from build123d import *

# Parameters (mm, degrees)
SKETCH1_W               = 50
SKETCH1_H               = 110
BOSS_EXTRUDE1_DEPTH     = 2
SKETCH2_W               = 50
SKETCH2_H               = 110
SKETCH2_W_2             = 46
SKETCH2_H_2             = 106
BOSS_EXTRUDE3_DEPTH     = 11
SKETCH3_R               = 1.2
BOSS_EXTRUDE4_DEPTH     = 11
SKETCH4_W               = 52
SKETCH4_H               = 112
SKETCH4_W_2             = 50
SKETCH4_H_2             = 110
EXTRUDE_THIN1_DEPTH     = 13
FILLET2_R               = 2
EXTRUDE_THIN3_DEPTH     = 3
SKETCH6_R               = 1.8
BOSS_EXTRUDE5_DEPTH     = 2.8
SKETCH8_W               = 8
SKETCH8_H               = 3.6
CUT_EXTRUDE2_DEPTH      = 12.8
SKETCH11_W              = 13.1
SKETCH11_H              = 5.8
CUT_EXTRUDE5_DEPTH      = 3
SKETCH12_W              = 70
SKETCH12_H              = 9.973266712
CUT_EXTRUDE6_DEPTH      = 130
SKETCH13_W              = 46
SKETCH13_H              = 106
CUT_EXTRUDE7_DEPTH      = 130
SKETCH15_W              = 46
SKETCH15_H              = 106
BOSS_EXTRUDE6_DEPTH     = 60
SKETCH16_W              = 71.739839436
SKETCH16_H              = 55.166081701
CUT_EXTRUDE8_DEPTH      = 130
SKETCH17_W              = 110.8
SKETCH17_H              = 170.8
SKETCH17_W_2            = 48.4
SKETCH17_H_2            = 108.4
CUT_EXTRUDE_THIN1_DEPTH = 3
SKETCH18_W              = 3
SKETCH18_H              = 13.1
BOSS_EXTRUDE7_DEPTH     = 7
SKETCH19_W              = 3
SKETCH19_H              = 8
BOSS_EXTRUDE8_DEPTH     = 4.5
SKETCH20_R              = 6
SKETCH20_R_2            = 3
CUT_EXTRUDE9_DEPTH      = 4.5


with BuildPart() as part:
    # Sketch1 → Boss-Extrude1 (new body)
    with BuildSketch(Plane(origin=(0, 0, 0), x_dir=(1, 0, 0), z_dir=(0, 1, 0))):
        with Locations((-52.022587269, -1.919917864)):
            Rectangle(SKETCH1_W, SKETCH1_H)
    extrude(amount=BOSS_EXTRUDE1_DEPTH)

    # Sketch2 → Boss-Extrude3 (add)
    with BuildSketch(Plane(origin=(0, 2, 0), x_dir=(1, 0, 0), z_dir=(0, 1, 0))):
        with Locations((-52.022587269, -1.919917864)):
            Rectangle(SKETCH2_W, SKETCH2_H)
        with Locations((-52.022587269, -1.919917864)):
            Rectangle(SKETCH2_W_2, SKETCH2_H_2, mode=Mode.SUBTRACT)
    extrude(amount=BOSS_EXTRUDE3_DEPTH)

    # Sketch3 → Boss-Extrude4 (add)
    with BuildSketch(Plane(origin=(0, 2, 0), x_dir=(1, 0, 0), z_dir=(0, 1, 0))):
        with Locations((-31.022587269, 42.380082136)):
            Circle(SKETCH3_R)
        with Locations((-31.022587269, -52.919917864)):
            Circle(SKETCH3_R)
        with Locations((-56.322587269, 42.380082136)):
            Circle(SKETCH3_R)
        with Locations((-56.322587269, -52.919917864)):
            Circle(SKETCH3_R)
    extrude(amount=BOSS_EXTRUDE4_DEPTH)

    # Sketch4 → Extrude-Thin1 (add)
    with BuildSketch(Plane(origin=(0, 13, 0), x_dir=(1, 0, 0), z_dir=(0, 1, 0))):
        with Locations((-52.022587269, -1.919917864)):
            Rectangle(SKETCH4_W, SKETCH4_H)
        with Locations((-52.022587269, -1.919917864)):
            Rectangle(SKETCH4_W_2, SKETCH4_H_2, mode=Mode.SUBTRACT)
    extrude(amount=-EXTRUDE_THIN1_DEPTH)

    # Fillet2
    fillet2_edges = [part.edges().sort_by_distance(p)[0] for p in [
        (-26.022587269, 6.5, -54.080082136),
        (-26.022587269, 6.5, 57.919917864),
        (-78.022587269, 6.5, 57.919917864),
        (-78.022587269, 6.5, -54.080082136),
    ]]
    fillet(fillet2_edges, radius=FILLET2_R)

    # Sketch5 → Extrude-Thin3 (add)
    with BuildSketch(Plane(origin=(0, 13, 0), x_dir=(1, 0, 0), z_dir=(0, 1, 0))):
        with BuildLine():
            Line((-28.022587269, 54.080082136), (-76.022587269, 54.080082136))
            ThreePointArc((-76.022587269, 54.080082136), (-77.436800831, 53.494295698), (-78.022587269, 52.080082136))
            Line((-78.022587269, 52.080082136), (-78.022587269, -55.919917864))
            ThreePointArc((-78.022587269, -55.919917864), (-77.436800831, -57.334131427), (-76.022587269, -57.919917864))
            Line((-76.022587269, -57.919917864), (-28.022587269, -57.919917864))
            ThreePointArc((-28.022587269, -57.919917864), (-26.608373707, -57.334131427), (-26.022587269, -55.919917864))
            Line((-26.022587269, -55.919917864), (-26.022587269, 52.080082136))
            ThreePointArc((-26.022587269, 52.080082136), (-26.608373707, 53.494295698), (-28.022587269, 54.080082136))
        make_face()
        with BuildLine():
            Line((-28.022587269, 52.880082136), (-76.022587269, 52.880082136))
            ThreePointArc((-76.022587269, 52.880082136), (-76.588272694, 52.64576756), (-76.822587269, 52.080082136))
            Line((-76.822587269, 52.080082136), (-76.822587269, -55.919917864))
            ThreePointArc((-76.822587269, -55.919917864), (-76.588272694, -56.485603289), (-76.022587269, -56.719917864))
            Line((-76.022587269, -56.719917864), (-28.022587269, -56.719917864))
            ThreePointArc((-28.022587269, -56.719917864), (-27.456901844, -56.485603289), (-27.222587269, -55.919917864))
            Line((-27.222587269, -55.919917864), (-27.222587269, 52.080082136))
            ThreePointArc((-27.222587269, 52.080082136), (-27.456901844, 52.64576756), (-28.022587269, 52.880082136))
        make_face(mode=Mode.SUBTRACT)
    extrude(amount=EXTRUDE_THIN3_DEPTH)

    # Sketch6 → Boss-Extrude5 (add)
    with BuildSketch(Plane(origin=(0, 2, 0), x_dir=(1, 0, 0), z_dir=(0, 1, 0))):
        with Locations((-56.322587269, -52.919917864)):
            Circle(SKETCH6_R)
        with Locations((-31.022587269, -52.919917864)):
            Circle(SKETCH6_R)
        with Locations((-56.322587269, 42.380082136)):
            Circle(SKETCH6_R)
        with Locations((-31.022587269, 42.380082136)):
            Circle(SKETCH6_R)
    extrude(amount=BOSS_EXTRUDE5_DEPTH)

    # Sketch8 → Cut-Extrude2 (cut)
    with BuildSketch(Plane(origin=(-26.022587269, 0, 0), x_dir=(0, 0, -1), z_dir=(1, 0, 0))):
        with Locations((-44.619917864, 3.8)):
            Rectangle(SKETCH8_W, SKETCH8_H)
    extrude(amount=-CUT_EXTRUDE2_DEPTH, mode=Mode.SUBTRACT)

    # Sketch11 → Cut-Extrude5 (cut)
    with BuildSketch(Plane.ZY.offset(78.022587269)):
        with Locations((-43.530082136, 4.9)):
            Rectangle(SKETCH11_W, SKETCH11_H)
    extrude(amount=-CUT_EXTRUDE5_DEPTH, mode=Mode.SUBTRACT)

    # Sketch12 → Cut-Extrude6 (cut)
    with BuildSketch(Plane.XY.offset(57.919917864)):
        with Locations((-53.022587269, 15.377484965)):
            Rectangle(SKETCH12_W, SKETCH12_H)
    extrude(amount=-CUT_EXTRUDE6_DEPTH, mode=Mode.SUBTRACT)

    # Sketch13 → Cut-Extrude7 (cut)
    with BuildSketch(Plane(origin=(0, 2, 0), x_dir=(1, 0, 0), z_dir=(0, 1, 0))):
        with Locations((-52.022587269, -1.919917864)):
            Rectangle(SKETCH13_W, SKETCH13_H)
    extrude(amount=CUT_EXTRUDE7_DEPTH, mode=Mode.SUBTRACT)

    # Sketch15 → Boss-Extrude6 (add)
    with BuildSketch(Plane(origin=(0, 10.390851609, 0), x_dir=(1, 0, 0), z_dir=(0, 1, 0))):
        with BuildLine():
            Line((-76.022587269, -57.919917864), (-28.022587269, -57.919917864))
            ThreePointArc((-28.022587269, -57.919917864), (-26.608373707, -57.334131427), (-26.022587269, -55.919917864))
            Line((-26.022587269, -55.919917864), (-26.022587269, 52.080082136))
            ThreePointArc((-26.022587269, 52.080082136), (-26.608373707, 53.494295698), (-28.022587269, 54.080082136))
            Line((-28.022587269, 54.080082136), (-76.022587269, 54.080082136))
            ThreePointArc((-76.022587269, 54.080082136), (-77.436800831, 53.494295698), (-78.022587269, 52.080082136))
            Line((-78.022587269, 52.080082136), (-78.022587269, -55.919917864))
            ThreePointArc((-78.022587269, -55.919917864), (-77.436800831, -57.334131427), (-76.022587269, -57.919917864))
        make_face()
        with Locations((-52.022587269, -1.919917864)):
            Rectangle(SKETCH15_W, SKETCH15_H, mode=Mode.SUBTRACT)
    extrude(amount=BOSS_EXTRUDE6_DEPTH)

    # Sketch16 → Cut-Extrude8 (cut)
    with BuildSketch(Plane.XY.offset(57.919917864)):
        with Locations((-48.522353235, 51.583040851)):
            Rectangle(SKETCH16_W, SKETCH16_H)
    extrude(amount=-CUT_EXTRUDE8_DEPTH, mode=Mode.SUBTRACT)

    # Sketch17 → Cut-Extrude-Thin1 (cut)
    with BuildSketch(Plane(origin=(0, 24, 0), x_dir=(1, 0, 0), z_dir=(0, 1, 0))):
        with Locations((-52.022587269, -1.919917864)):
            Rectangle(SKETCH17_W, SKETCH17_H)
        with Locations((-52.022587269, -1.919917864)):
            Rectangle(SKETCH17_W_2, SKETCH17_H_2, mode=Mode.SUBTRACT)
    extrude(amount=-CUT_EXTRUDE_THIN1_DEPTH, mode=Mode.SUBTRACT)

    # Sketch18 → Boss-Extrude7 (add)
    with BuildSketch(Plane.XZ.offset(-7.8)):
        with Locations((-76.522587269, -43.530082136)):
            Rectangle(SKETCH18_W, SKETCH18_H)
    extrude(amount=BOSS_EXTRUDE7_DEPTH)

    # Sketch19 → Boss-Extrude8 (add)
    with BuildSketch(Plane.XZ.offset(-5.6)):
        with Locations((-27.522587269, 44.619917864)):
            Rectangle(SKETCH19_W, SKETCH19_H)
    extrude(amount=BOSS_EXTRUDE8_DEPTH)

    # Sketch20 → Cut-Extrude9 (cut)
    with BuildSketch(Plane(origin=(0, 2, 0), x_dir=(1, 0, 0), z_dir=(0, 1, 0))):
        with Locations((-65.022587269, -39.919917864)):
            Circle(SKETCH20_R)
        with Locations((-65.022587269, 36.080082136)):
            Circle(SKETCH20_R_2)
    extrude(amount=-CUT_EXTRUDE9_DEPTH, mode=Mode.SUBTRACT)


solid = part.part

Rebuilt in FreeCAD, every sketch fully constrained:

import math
import FreeCAD as App
import Part
import Sketcher
from FreeCAD import Vector


def edges_at(feature, points):
    """Names of the edges that pass closest to the given points."""
    edges = feature.Shape.Edges
    near = lambda p: min(range(len(edges)), key=lambda i: edges[i].distToShape(Part.Vertex(*p))[0])
    return sorted({f"Edge{near(p) + 1}" for p in points})

doc = App.newDocument("Part")
body = doc.addObject("PartDesign::Body", "Body")

sketch1 = body.newObject("Sketcher::SketchObject", "Sketch")
sketch1.AttachmentSupport = (doc.getObject("XZ_Plane"), [""])
sketch1.MapMode = "FlatFace"
sketch1.addGeometry([
    Part.LineSegment(Vector(-77, -53, 0), Vector(-77, 57, 0)),
    Part.LineSegment(Vector(-77, 57, 0), Vector(-27, 57, 0)),
    Part.LineSegment(Vector(-27, 57, 0), Vector(-27, -53, 0)),
    Part.LineSegment(Vector(-27, -53, 0), Vector(-77, -53, 0)),
], False)
sketch1.addConstraint([
    Sketcher.Constraint("Coincident", 0, 2, 1, 1),
    Sketcher.Constraint("Coincident", 1, 2, 2, 1),
    Sketcher.Constraint("Coincident", 2, 2, 3, 1),
    Sketcher.Constraint("Coincident", 3, 2, 0, 1),
    Sketcher.Constraint("Vertical", 0),
    Sketcher.Constraint("Horizontal", 1),
    Sketcher.Constraint("Vertical", 2),
    Sketcher.Constraint("Horizontal", 3),
    Sketcher.Constraint("DistanceX", 1, 1, 1, 2, 50.0),
    Sketcher.Constraint("DistanceY", 0, 1, 0, 2, 110.0),
    Sketcher.Constraint("DistanceX", 0, 2, -1, 1, 77.022587),
    Sketcher.Constraint("DistanceY", -1, 1, 0, 2, 56.919918),
])
pad1 = body.newObject("PartDesign::Pad", "Pad")
pad1.Profile = sketch1
pad1.Length = 2
pad1.Reversed = True

sketch2 = body.newObject("Sketcher::SketchObject", "Sketch001")
sketch2.AttachmentSupport = (doc.getObject("XZ_Plane"), [""])
sketch2.MapMode = "FlatFace"
sketch2.AttachmentOffset = App.Placement(Vector(0, 0, -2), App.Rotation())
sketch2.addGeometry([
    Part.LineSegment(Vector(-77, -53, 0), Vector(-77, 57, 0)),
    Part.LineSegment(Vector(-77, 57, 0), Vector(-27, 57, 0)),
    Part.LineSegment(Vector(-27, 57, 0), Vector(-27, -53, 0)),
    Part.LineSegment(Vector(-27, -53, 0), Vector(-77, -53, 0)),
    Part.LineSegment(Vector(-29, 55, 0), Vector(-75, 55, 0)),
    Part.LineSegment(Vector(-75, 55, 0), Vector(-75, -51, 0)),
    Part.LineSegment(Vector(-75, -51, 0), Vector(-29, -51, 0)),
    Part.LineSegment(Vector(-29, -51, 0), Vector(-29, 55, 0)),
], False)
sketch2.addConstraint([
    Sketcher.Constraint("Coincident", 0, 2, 1, 1),
    Sketcher.Constraint("Coincident", 1, 2, 2, 1),
    Sketcher.Constraint("Coincident", 2, 2, 3, 1),
    Sketcher.Constraint("Coincident", 3, 2, 0, 1),
    Sketcher.Constraint("Coincident", 4, 2, 5, 1),
    Sketcher.Constraint("Coincident", 5, 2, 6, 1),
    Sketcher.Constraint("Coincident", 6, 2, 7, 1),
    Sketcher.Constraint("Coincident", 7, 2, 4, 1),
    Sketcher.Constraint("Vertical", 0),
    Sketcher.Constraint("Horizontal", 1),
    Sketcher.Constraint("Vertical", 2),
    Sketcher.Constraint("Horizontal", 3),
    Sketcher.Constraint("Horizontal", 4),
    Sketcher.Constraint("Vertical", 5),
    Sketcher.Constraint("Horizontal", 6),
    Sketcher.Constraint("Vertical", 7),
    Sketcher.Constraint("DistanceX", 1, 1, 1, 2, 50.0),
    Sketcher.Constraint("DistanceX", 4, 2, 4, 1, 46.0),
    Sketcher.Constraint("DistanceY", 0, 1, 0, 2, 110.0),
    Sketcher.Constraint("DistanceY", 5, 2, 5, 1, 106.0),
    Sketcher.Constraint("DistanceX", 0, 2, 4, 2, 2.0),
    Sketcher.Constraint("DistanceY", 4, 2, 0, 2, 2.0),
    Sketcher.Constraint("DistanceX", 0, 2, -1, 1, 77.022587),
    Sketcher.Constraint("DistanceY", -1, 1, 0, 2, 56.919918),
])
pad2 = body.newObject("PartDesign::Pad", "Pad001")
pad2.Profile = sketch2
pad2.Length = 11
pad2.Reversed = True

sketch3 = body.newObject("Sketcher::SketchObject", "Sketch002")
sketch3.AttachmentSupport = (doc.getObject("XZ_Plane"), [""])
sketch3.MapMode = "FlatFace"
sketch3.AttachmentOffset = App.Placement(Vector(0, 0, -2), App.Rotation())
sketch3.addGeometry([
    Part.Circle(Vector(-31, -42.4, 0), Vector(0, 0, 1), 1.2),
    Part.Circle(Vector(-31, 52.9, 0), Vector(0, 0, 1), 1.2),
    Part.Circle(Vector(-56.3, -42.4, 0), Vector(0, 0, 1), 1.2),
    Part.Circle(Vector(-56.3, 52.9, 0), Vector(0, 0, 1), 1.2),
], False)
sketch3.addConstraint([
    Sketcher.Constraint("Equal", 0, 1),
    Sketcher.Constraint("Equal", 1, 2),
    Sketcher.Constraint("Equal", 2, 3),
    Sketcher.Constraint("Horizontal", 0, 3, 2, 3),
    Sketcher.Constraint("Horizontal", 1, 3, 3, 3),
    Sketcher.Constraint("Vertical", 0, 3, 1, 3),
    Sketcher.Constraint("Vertical", 2, 3, 3, 3),
    Sketcher.Constraint("Diameter", 0, 2.4),
    Sketcher.Constraint("DistanceY", 0, 3, 1, 3, 95.3),
    Sketcher.Constraint("DistanceX", 2, 3, 0, 3, 25.3),
    Sketcher.Constraint("DistanceX", 0, 3, -1, 1, 31.022587),
    Sketcher.Constraint("DistanceY", 0, 3, -1, 1, 42.380082),
])
pad3 = body.newObject("PartDesign::Pad", "Pad002")
pad3.Profile = sketch3
pad3.Length = 11
pad3.Reversed = True

sketch4 = body.newObject("Sketcher::SketchObject", "Sketch003")
sketch4.AttachmentSupport = (doc.getObject("XZ_Plane"), [""])
sketch4.MapMode = "FlatFace"
sketch4.AttachmentOffset = App.Placement(Vector(0, 0, -13), App.Rotation())
sketch4.addGeometry([
    Part.LineSegment(Vector(-78, -54, 0), Vector(-78, 58, 0)),
    Part.LineSegment(Vector(-78, 58, 0), Vector(-26, 58, 0)),
    Part.LineSegment(Vector(-26, 58, 0), Vector(-26, -54, 0)),
    Part.LineSegment(Vector(-26, -54, 0), Vector(-78, -54, 0)),
    Part.LineSegment(Vector(-27, 57, 0), Vector(-77, 57, 0)),
    Part.LineSegment(Vector(-77, 57, 0), Vector(-77, -53, 0)),
    Part.LineSegment(Vector(-77, -53, 0), Vector(-27, -53, 0)),
    Part.LineSegment(Vector(-27, -53, 0), Vector(-27, 57, 0)),
], False)
sketch4.addConstraint([
    Sketcher.Constraint("Coincident", 0, 2, 1, 1),
    Sketcher.Constraint("Coincident", 1, 2, 2, 1),
    Sketcher.Constraint("Coincident", 2, 2, 3, 1),
    Sketcher.Constraint("Coincident", 3, 2, 0, 1),
    Sketcher.Constraint("Coincident", 4, 2, 5, 1),
    Sketcher.Constraint("Coincident", 5, 2, 6, 1),
    Sketcher.Constraint("Coincident", 6, 2, 7, 1),
    Sketcher.Constraint("Coincident", 7, 2, 4, 1),
    Sketcher.Constraint("Vertical", 0),
    Sketcher.Constraint("Horizontal", 1),
    Sketcher.Constraint("Vertical", 2),
    Sketcher.Constraint("Horizontal", 3),
    Sketcher.Constraint("Horizontal", 4),
    Sketcher.Constraint("Vertical", 5),
    Sketcher.Constraint("Horizontal", 6),
    Sketcher.Constraint("Vertical", 7),
    Sketcher.Constraint("DistanceX", 1, 1, 1, 2, 52.0),
    Sketcher.Constraint("DistanceX", 4, 2, 4, 1, 50.0),
    Sketcher.Constraint("DistanceY", 0, 1, 0, 2, 112.0),
    Sketcher.Constraint("DistanceY", 5, 2, 5, 1, 110.0),
    Sketcher.Constraint("DistanceX", 0, 2, 4, 2, 1.0),
    Sketcher.Constraint("DistanceY", 4, 2, 0, 2, 1.0),
    Sketcher.Constraint("DistanceX", 0, 2, -1, 1, 78.022587),
    Sketcher.Constraint("DistanceY", -1, 1, 0, 2, 57.919918),
])
pad4 = body.newObject("PartDesign::Pad", "Pad003")
pad4.Profile = sketch4
pad4.Length = 13
doc.recompute()

fillet = body.newObject("PartDesign::Fillet", "Fillet")
fillet.Base = (pad4, edges_at(pad4, [
    (-26.023, 6.5, -54.08),
    (-26.023, 6.5, 57.92),
    (-78.023, 6.5, 57.92),
    (-78.023, 6.5, -54.08),
]))
fillet.Radius = 2

sketch5 = body.newObject("Sketcher::SketchObject", "Sketch004")
sketch5.AttachmentSupport = (doc.getObject("XZ_Plane"), [""])
sketch5.MapMode = "FlatFace"
sketch5.AttachmentOffset = App.Placement(Vector(0, 0, -13), App.Rotation())
sketch5.addGeometry([
    Part.LineSegment(Vector(-28, -54.1, 0), Vector(-76, -54.1, 0)),
    Part.ArcOfCircle(Part.Circle(Vector(-76, -52.1, 0), Vector(0, 0, 1), 2), math.radians(-180), math.radians(-90)),
    Part.LineSegment(Vector(-78, -52.1, 0), Vector(-78, 55.9, 0)),
    Part.ArcOfCircle(Part.Circle(Vector(-76, 55.9, 0), Vector(0, 0, 1), 2), math.radians(90), math.radians(180)),
    Part.LineSegment(Vector(-76, 57.9, 0), Vector(-28, 57.9, 0)),
    Part.ArcOfCircle(Part.Circle(Vector(-28, 55.9, 0), Vector(0, 0, 1), 2), math.radians(0), math.radians(90)),
    Part.LineSegment(Vector(-26, 55.9, 0), Vector(-26, -52.1, 0)),
    Part.ArcOfCircle(Part.Circle(Vector(-28, -52.1, 0), Vector(0, 0, 1), 2), math.radians(-90), math.radians(0)),
    Part.LineSegment(Vector(-76, -52.9, 0), Vector(-28, -52.9, 0)),
    Part.ArcOfCircle(Part.Circle(Vector(-28, -52.1, 0), Vector(0, 0, 1), 0.8), math.radians(-90), math.radians(0)),
    Part.LineSegment(Vector(-27.2, -52.1, 0), Vector(-27.2, 55.9, 0)),
    Part.ArcOfCircle(Part.Circle(Vector(-28, 55.9, 0), Vector(0, 0, 1), 0.8), math.radians(0), math.radians(90)),
    Part.LineSegment(Vector(-28, 56.7, 0), Vector(-76, 56.7, 0)),
    Part.ArcOfCircle(Part.Circle(Vector(-76, 55.9, 0), Vector(0, 0, 1), 0.8), math.radians(90), math.radians(180)),
    Part.LineSegment(Vector(-76.8, 55.9, 0), Vector(-76.8, -52.1, 0)),
    Part.ArcOfCircle(Part.Circle(Vector(-76, -52.1, 0), Vector(0, 0, 1), 0.8), math.radians(-180), math.radians(-90)),
], False)
sketch5.addConstraint([
    Sketcher.Constraint("Tangent", 0, 2, 1, 2),
    Sketcher.Constraint("Tangent", 1, 1, 2, 1),
    Sketcher.Constraint("Tangent", 2, 2, 3, 2),
    Sketcher.Constraint("Tangent", 3, 1, 4, 1),
    Sketcher.Constraint("Tangent", 4, 2, 5, 2),
    Sketcher.Constraint("Tangent", 5, 1, 6, 1),
    Sketcher.Constraint("Tangent", 6, 2, 7, 2),
    Sketcher.Constraint("Tangent", 7, 1, 0, 1),
    Sketcher.Constraint("Tangent", 8, 2, 9, 1),
    Sketcher.Constraint("Tangent", 9, 2, 10, 1),
    Sketcher.Constraint("Tangent", 10, 2, 11, 1),
    Sketcher.Constraint("Tangent", 11, 2, 12, 1),
    Sketcher.Constraint("Tangent", 12, 2, 13, 1),
    Sketcher.Constraint("Tangent", 13, 2, 14, 1),
    Sketcher.Constraint("Tangent", 14, 2, 15, 1),
    Sketcher.Constraint("Tangent", 15, 2, 8, 1),
    Sketcher.Constraint("Horizontal", 0),
    Sketcher.Constraint("Vertical", 2),
    Sketcher.Constraint("Horizontal", 4),
    Sketcher.Constraint("Vertical", 6),
    Sketcher.Constraint("Horizontal", 8),
    Sketcher.Constraint("Vertical", 10),
    Sketcher.Constraint("Horizontal", 12),
    Sketcher.Constraint("Vertical", 14),
    Sketcher.Constraint("Coincident", 9, 3, 7, 3),
    Sketcher.Constraint("Coincident", 11, 3, 5, 3),
    Sketcher.Constraint("Coincident", 13, 3, 3, 3),
    Sketcher.Constraint("Equal", 1, 3),
    Sketcher.Constraint("Equal", 3, 5),
    Sketcher.Constraint("Equal", 5, 7),
    Sketcher.Constraint("Equal", 13, 15),
    Sketcher.Constraint("Radius", 1, 2.0),
    Sketcher.Constraint("Radius", 9, 0.8),
    Sketcher.Constraint("DistanceX", 0, 2, 0, 1, 48.0),
    Sketcher.Constraint("DistanceY", 2, 1, 2, 2, 108.0),
    Sketcher.Constraint("DistanceX", 1, 3, -1, 1, 76.022587),
    Sketcher.Constraint("DistanceY", 1, 3, -1, 1, 52.080082),
])
pad5 = body.newObject("PartDesign::Pad", "Pad004")
pad5.Profile = sketch5
pad5.Length = 3
pad5.Reversed = True

sketch6 = body.newObject("Sketcher::SketchObject", "Sketch005")
sketch6.AttachmentSupport = (doc.getObject("XZ_Plane"), [""])
sketch6.MapMode = "FlatFace"
sketch6.AttachmentOffset = App.Placement(Vector(0, 0, -2), App.Rotation())
sketch6.addGeometry([
    Part.Circle(Vector(-56.3, 52.9, 0), Vector(0, 0, 1), 1.8),
    Part.Circle(Vector(-31, 52.9, 0), Vector(0, 0, 1), 1.8),
    Part.Circle(Vector(-56.3, -42.4, 0), Vector(0, 0, 1), 1.8),
    Part.Circle(Vector(-31, -42.4, 0), Vector(0, 0, 1), 1.8),
], False)
sketch6.addConstraint([
    Sketcher.Constraint("Equal", 0, 1),
    Sketcher.Constraint("Equal", 1, 2),
    Sketcher.Constraint("Equal", 2, 3),
    Sketcher.Constraint("Horizontal", 0, 3, 1, 3),
    Sketcher.Constraint("Horizontal", 2, 3, 3, 3),
    Sketcher.Constraint("Vertical", 0, 3, 2, 3),
    Sketcher.Constraint("Vertical", 1, 3, 3, 3),
    Sketcher.Constraint("Diameter", 0, 3.6),
    Sketcher.Constraint("DistanceX", 0, 3, 1, 3, 25.3),
    Sketcher.Constraint("DistanceY", 2, 3, 0, 3, 95.3),
    Sketcher.Constraint("DistanceX", 0, 3, -1, 1, 56.322587),
    Sketcher.Constraint("DistanceY", -1, 1, 0, 3, 52.919918),
])
pad6 = body.newObject("PartDesign::Pad", "Pad005")
pad6.Profile = sketch6
pad6.Length = 2.8
pad6.Reversed = True

sketch7 = body.newObject("Sketcher::SketchObject", "Sketch006")
sketch7.AttachmentSupport = (doc.getObject("YZ_Plane"), [""])
sketch7.MapMode = "FlatFace"
sketch7.AttachmentOffset = App.Placement(Vector(0, 0, -26.022587), App.Rotation())
sketch7.addGeometry([
    Part.LineSegment(Vector(5.6, 48.6, 0), Vector(2, 48.6, 0)),
    Part.LineSegment(Vector(2, 48.6, 0), Vector(2, 40.6, 0)),
    Part.LineSegment(Vector(2, 40.6, 0), Vector(5.6, 40.6, 0)),
    Part.LineSegment(Vector(5.6, 40.6, 0), Vector(5.6, 48.6, 0)),
], False)
sketch7.addConstraint([
    Sketcher.Constraint("Coincident", 0, 2, 1, 1),
    Sketcher.Constraint("Coincident", 1, 2, 2, 1),
    Sketcher.Constraint("Coincident", 2, 2, 3, 1),
    Sketcher.Constraint("Coincident", 3, 2, 0, 1),
    Sketcher.Constraint("Horizontal", 0),
    Sketcher.Constraint("Vertical", 1),
    Sketcher.Constraint("Horizontal", 2),
    Sketcher.Constraint("Vertical", 3),
    Sketcher.Constraint("DistanceY", 1, 2, 1, 1, 8.0),
    Sketcher.Constraint("DistanceX", 0, 2, 0, 1, 3.6),
    Sketcher.Constraint("DistanceX", -1, 1, 0, 2, 2.0),
    Sketcher.Constraint("DistanceY", -1, 1, 0, 2, 48.619918),
])
pocket1 = body.newObject("PartDesign::Pocket", "Pocket")
pocket1.Profile = sketch7
pocket1.Length = 12.8

sketch8 = body.newObject("Sketcher::SketchObject", "Sketch007")
sketch8.AttachmentSupport = (doc.getObject("YZ_Plane"), [""])
sketch8.MapMode = "FlatFace"
sketch8.AttachmentOffset = App.Placement(Vector(0, 0, -78.022587), App.Rotation())
sketch8.addGeometry([
    Part.LineSegment(Vector(8, -50, 0), Vector(2, -50, 0)),
    Part.LineSegment(Vector(2, -50, 0), Vector(2, -37, 0)),
    Part.LineSegment(Vector(2, -37, 0), Vector(8, -37, 0)),
    Part.LineSegment(Vector(8, -37, 0), Vector(8, -50, 0)),
], False)
sketch8.addConstraint([
    Sketcher.Constraint("Coincident", 0, 2, 1, 1),
    Sketcher.Constraint("Coincident", 1, 2, 2, 1),
    Sketcher.Constraint("Coincident", 2, 2, 3, 1),
    Sketcher.Constraint("Coincident", 3, 2, 0, 1),
    Sketcher.Constraint("Horizontal", 0),
    Sketcher.Constraint("Vertical", 1),
    Sketcher.Constraint("Horizontal", 2),
    Sketcher.Constraint("Vertical", 3),
    Sketcher.Constraint("DistanceX", 0, 2, 0, 1, 5.8),
    Sketcher.Constraint("DistanceY", 1, 1, 1, 2, 13.1),
    Sketcher.Constraint("DistanceX", -1, 1, 0, 2, 2.0),
    Sketcher.Constraint("DistanceY", 0, 2, -1, 1, 50.080082),
])
pocket2 = body.newObject("PartDesign::Pocket", "Pocket001")
pocket2.Profile = sketch8
pocket2.Length = 3
pocket2.Reversed = True

sketch9 = body.newObject("Sketcher::SketchObject", "Sketch008")
sketch9.AttachmentSupport = (doc.getObject("XY_Plane"), [""])
sketch9.MapMode = "FlatFace"
sketch9.AttachmentOffset = App.Placement(Vector(0, 0, 57.919918), App.Rotation())
sketch9.addGeometry([
    Part.LineSegment(Vector(-88, 20, 0), Vector(-88, 10, 0)),
    Part.LineSegment(Vector(-88, 10, 0), Vector(-18, 10, 0)),
    Part.LineSegment(Vector(-18, 10, 0), Vector(-18, 20, 0)),
    Part.LineSegment(Vector(-18, 20, 0), Vector(-88, 20, 0)),
], False)
sketch9.addConstraint([
    Sketcher.Constraint("Coincident", 0, 2, 1, 1),
    Sketcher.Constraint("Coincident", 1, 2, 2, 1),
    Sketcher.Constraint("Coincident", 2, 2, 3, 1),
    Sketcher.Constraint("Coincident", 3, 2, 0, 1),
    Sketcher.Constraint("Vertical", 0),
    Sketcher.Constraint("Horizontal", 1),
    Sketcher.Constraint("Vertical", 2),
    Sketcher.Constraint("Horizontal", 3),
    Sketcher.Constraint("DistanceX", 1, 1, 1, 2, 70.0),
    Sketcher.Constraint("DistanceY", 0, 2, 0, 1, 9.973267),
    Sketcher.Constraint("DistanceY", -1, 1, 0, 2, 10.390852),
    Sketcher.Constraint("DistanceX", 0, 2, -1, 1, 88.022587),
])
pocket3 = body.newObject("PartDesign::Pocket", "Pocket002")
pocket3.Profile = sketch9
pocket3.Length = 130

sketch10 = body.newObject("Sketcher::SketchObject", "Sketch009")
sketch10.AttachmentSupport = (doc.getObject("XZ_Plane"), [""])
sketch10.MapMode = "FlatFace"
sketch10.AttachmentOffset = App.Placement(Vector(0, 0, -2), App.Rotation())
sketch10.addGeometry([
    Part.LineSegment(Vector(-75, -51, 0), Vector(-75, 55, 0)),
    Part.LineSegment(Vector(-75, 55, 0), Vector(-29, 55, 0)),
    Part.LineSegment(Vector(-29, 55, 0), Vector(-29, -51, 0)),
    Part.LineSegment(Vector(-29, -51, 0), Vector(-75, -51, 0)),
], False)
sketch10.addConstraint([
    Sketcher.Constraint("Coincident", 0, 2, 1, 1),
    Sketcher.Constraint("Coincident", 1, 2, 2, 1),
    Sketcher.Constraint("Coincident", 2, 2, 3, 1),
    Sketcher.Constraint("Coincident", 3, 2, 0, 1),
    Sketcher.Constraint("Vertical", 0),
    Sketcher.Constraint("Horizontal", 1),
    Sketcher.Constraint("Vertical", 2),
    Sketcher.Constraint("Horizontal", 3),
    Sketcher.Constraint("DistanceX", 1, 1, 1, 2, 46.0),
    Sketcher.Constraint("DistanceY", 0, 1, 0, 2, 106.0),
    Sketcher.Constraint("DistanceX", 0, 2, -1, 1, 75.022587),
    Sketcher.Constraint("DistanceY", -1, 1, 0, 2, 54.919918),
])
pocket4 = body.newObject("PartDesign::Pocket", "Pocket003")
pocket4.Profile = sketch10
pocket4.Length = 130

sketch11 = body.newObject("Sketcher::SketchObject", "Sketch010")
sketch11.AttachmentSupport = (doc.getObject("XZ_Plane"), [""])
sketch11.MapMode = "FlatFace"
sketch11.AttachmentOffset = App.Placement(Vector(0, 0, -10.390852), App.Rotation())
sketch11.addGeometry([
    Part.LineSegment(Vector(-76, 57.9, 0), Vector(-28, 57.9, 0)),
    Part.ArcOfCircle(Part.Circle(Vector(-28, 55.9, 0), Vector(0, 0, 1), 2), math.radians(0), math.radians(90)),
    Part.LineSegment(Vector(-26, 55.9, 0), Vector(-26, -52.1, 0)),
    Part.ArcOfCircle(Part.Circle(Vector(-28, -52.1, 0), Vector(0, 0, 1), 2), math.radians(-90), math.radians(0)),
    Part.LineSegment(Vector(-28, -54.1, 0), Vector(-76, -54.1, 0)),
    Part.ArcOfCircle(Part.Circle(Vector(-76, -52.1, 0), Vector(0, 0, 1), 2), math.radians(-180), math.radians(-90)),
    Part.LineSegment(Vector(-78, -52.1, 0), Vector(-78, 55.9, 0)),
    Part.ArcOfCircle(Part.Circle(Vector(-76, 55.9, 0), Vector(0, 0, 1), 2), math.radians(90), math.radians(180)),
    Part.LineSegment(Vector(-29, 54.9, 0), Vector(-75, 54.9, 0)),
    Part.LineSegment(Vector(-75, 54.9, 0), Vector(-75, -51.1, 0)),
    Part.LineSegment(Vector(-75, -51.1, 0), Vector(-29, -51.1, 0)),
    Part.LineSegment(Vector(-29, -51.1, 0), Vector(-29, 54.9, 0)),
], False)
sketch11.addConstraint([
    Sketcher.Constraint("Tangent", 0, 2, 1, 2),
    Sketcher.Constraint("Tangent", 1, 1, 2, 1),
    Sketcher.Constraint("Tangent", 2, 2, 3, 2),
    Sketcher.Constraint("Tangent", 3, 1, 4, 1),
    Sketcher.Constraint("Tangent", 4, 2, 5, 2),
    Sketcher.Constraint("Tangent", 5, 1, 6, 1),
    Sketcher.Constraint("Tangent", 6, 2, 7, 2),
    Sketcher.Constraint("Tangent", 7, 1, 0, 1),
    Sketcher.Constraint("Coincident", 8, 2, 9, 1),
    Sketcher.Constraint("Coincident", 9, 2, 10, 1),
    Sketcher.Constraint("Coincident", 10, 2, 11, 1),
    Sketcher.Constraint("Coincident", 11, 2, 8, 1),
    Sketcher.Constraint("Horizontal", 0),
    Sketcher.Constraint("Vertical", 2),
    Sketcher.Constraint("Horizontal", 4),
    Sketcher.Constraint("Vertical", 6),
    Sketcher.Constraint("Horizontal", 8),
    Sketcher.Constraint("Vertical", 9),
    Sketcher.Constraint("Horizontal", 10),
    Sketcher.Constraint("Vertical", 11),
    Sketcher.Constraint("Equal", 1, 3),
    Sketcher.Constraint("Equal", 3, 5),
    Sketcher.Constraint("Equal", 5, 7),
    Sketcher.Constraint("Radius", 1, 2.0),
    Sketcher.Constraint("DistanceX", 0, 1, 0, 2, 48.0),
    Sketcher.Constraint("DistanceX", 8, 2, 8, 1, 46.0),
    Sketcher.Constraint("DistanceY", 2, 2, 2, 1, 108.0),
    Sketcher.Constraint("DistanceY", 9, 2, 9, 1, 106.0),
    Sketcher.Constraint("DistanceX", 7, 3, 8, 2, 1.0),
    Sketcher.Constraint("DistanceY", 8, 2, 7, 3, 1.0),
    Sketcher.Constraint("DistanceX", 1, 3, -1, 1, 28.022587),
    Sketcher.Constraint("DistanceY", -1, 1, 1, 3, 55.919918),
])
pad7 = body.newObject("PartDesign::Pad", "Pad006")
pad7.Profile = sketch11
pad7.Length = 60
pad7.Reversed = True

sketch12 = body.newObject("Sketcher::SketchObject", "Sketch011")
sketch12.AttachmentSupport = (doc.getObject("XY_Plane"), [""])
sketch12.MapMode = "FlatFace"
sketch12.AttachmentOffset = App.Placement(Vector(0, 0, 57.919918), App.Rotation())
sketch12.addGeometry([
    Part.LineSegment(Vector(-84, 79, 0), Vector(-84, 24, 0)),
    Part.LineSegment(Vector(-84, 24, 0), Vector(-13, 24, 0)),
    Part.LineSegment(Vector(-13, 24, 0), Vector(-13, 79, 0)),
    Part.LineSegment(Vector(-13, 79, 0), Vector(-84, 79, 0)),
], False)
sketch12.addConstraint([
    Sketcher.Constraint("Coincident", 0, 2, 1, 1),
    Sketcher.Constraint("Coincident", 1, 2, 2, 1),
    Sketcher.Constraint("Coincident", 2, 2, 3, 1),
    Sketcher.Constraint("Coincident", 3, 2, 0, 1),
    Sketcher.Constraint("Vertical", 0),
    Sketcher.Constraint("Horizontal", 1),
    Sketcher.Constraint("Vertical", 2),
    Sketcher.Constraint("Horizontal", 3),
    Sketcher.Constraint("DistanceY", -1, 1, 0, 2, 24.0),
    Sketcher.Constraint("DistanceX", 1, 1, 1, 2, 71.739839),
    Sketcher.Constraint("DistanceY", 0, 2, 0, 1, 55.166082),
    Sketcher.Constraint("DistanceX", 0, 2, -1, 1, 84.392273),
])
pocket5 = body.newObject("PartDesign::Pocket", "Pocket004")
pocket5.Profile = sketch12
pocket5.Length = 130

sketch13 = body.newObject("Sketcher::SketchObject", "Sketch012")
sketch13.AttachmentSupport = (doc.getObject("XZ_Plane"), [""])
sketch13.MapMode = "FlatFace"
sketch13.AttachmentOffset = App.Placement(Vector(0, 0, -24), App.Rotation())
sketch13.addGeometry([
    Part.LineSegment(Vector(-107, -83, 0), Vector(-107, 87, 0)),
    Part.LineSegment(Vector(-107, 87, 0), Vector(3, 87, 0)),
    Part.LineSegment(Vector(3, 87, 0), Vector(3, -83, 0)),
    Part.LineSegment(Vector(3, -83, 0), Vector(-107, -83, 0)),
    Part.LineSegment(Vector(-28, 56, 0), Vector(-76, 56, 0)),
    Part.LineSegment(Vector(-76, 56, 0), Vector(-76, -52, 0)),
    Part.LineSegment(Vector(-76, -52, 0), Vector(-28, -52, 0)),
    Part.LineSegment(Vector(-28, -52, 0), Vector(-28, 56, 0)),
], False)
sketch13.addConstraint([
    Sketcher.Constraint("Coincident", 0, 2, 1, 1),
    Sketcher.Constraint("Coincident", 1, 2, 2, 1),
    Sketcher.Constraint("Coincident", 2, 2, 3, 1),
    Sketcher.Constraint("Coincident", 3, 2, 0, 1),
    Sketcher.Constraint("Coincident", 4, 2, 5, 1),
    Sketcher.Constraint("Coincident", 5, 2, 6, 1),
    Sketcher.Constraint("Coincident", 6, 2, 7, 1),
    Sketcher.Constraint("Coincident", 7, 2, 4, 1),
    Sketcher.Constraint("Vertical", 0),
    Sketcher.Constraint("Horizontal", 1),
    Sketcher.Constraint("Vertical", 2),
    Sketcher.Constraint("Horizontal", 3),
    Sketcher.Constraint("Horizontal", 4),
    Sketcher.Constraint("Vertical", 5),
    Sketcher.Constraint("Horizontal", 6),
    Sketcher.Constraint("Vertical", 7),
    Sketcher.Constraint("DistanceX", 1, 1, 1, 2, 110.8),
    Sketcher.Constraint("DistanceX", 4, 2, 4, 1, 48.4),
    Sketcher.Constraint("DistanceY", 0, 1, 0, 2, 170.8),
    Sketcher.Constraint("DistanceY", 5, 2, 5, 1, 108.4),
    Sketcher.Constraint("DistanceX", 0, 2, 4, 2, 31.2),
    Sketcher.Constraint("DistanceY", 4, 2, 0, 2, 31.2),
    Sketcher.Constraint("DistanceX", 0, 2, -1, 1, 107.422587),
    Sketcher.Constraint("DistanceY", -1, 1, 0, 2, 87.319918),
])
pocket6 = body.newObject("PartDesign::Pocket", "Pocket005")
pocket6.Profile = sketch13
pocket6.Length = 3
pocket6.Reversed = True

sketch14 = body.newObject("Sketcher::SketchObject", "Sketch013")
sketch14.AttachmentSupport = (doc.getObject("XZ_Plane"), [""])
sketch14.MapMode = "FlatFace"
sketch14.AttachmentOffset = App.Placement(Vector(0, 0, -7.8), App.Rotation())
sketch14.addGeometry([
    Part.LineSegment(Vector(-78, -37, 0), Vector(-78, -50.1, 0)),
    Part.LineSegment(Vector(-78, -50.1, 0), Vector(-75, -50.1, 0)),
    Part.LineSegment(Vector(-75, -50.1, 0), Vector(-75, -37, 0)),
    Part.LineSegment(Vector(-75, -37, 0), Vector(-78, -37, 0)),
], False)
sketch14.addConstraint([
    Sketcher.Constraint("Coincident", 0, 2, 1, 1),
    Sketcher.Constraint("Coincident", 1, 2, 2, 1),
    Sketcher.Constraint("Coincident", 2, 2, 3, 1),
    Sketcher.Constraint("Coincident", 3, 2, 0, 1),
    Sketcher.Constraint("Vertical", 0),
    Sketcher.Constraint("Horizontal", 1),
    Sketcher.Constraint("Vertical", 2),
    Sketcher.Constraint("Horizontal", 3),
    Sketcher.Constraint("DistanceX", 1, 1, 1, 2, 3.0),
    Sketcher.Constraint("DistanceY", 0, 2, 0, 1, 13.1),
    Sketcher.Constraint("DistanceX", 0, 2, -1, 1, 78.022587),
    Sketcher.Constraint("DistanceY", 0, 2, -1, 1, 50.080082),
])
pad8 = body.newObject("PartDesign::Pad", "Pad007")
pad8.Profile = sketch14
pad8.Length = 7

sketch15 = body.newObject("Sketcher::SketchObject", "Sketch014")
sketch15.AttachmentSupport = (doc.getObject("XZ_Plane"), [""])
sketch15.MapMode = "FlatFace"
sketch15.AttachmentOffset = App.Placement(Vector(0, 0, -5.6), App.Rotation())
sketch15.addGeometry([
    Part.LineSegment(Vector(-29, 48.6, 0), Vector(-29, 40.6, 0)),
    Part.LineSegment(Vector(-29, 40.6, 0), Vector(-26, 40.6, 0)),
    Part.LineSegment(Vector(-26, 40.6, 0), Vector(-26, 48.6, 0)),
    Part.LineSegment(Vector(-26, 48.6, 0), Vector(-29, 48.6, 0)),
], False)
sketch15.addConstraint([
    Sketcher.Constraint("Coincident", 0, 2, 1, 1),
    Sketcher.Constraint("Coincident", 1, 2, 2, 1),
    Sketcher.Constraint("Coincident", 2, 2, 3, 1),
    Sketcher.Constraint("Coincident", 3, 2, 0, 1),
    Sketcher.Constraint("Vertical", 0),
    Sketcher.Constraint("Horizontal", 1),
    Sketcher.Constraint("Vertical", 2),
    Sketcher.Constraint("Horizontal", 3),
    Sketcher.Constraint("DistanceX", 1, 1, 1, 2, 3.0),
    Sketcher.Constraint("DistanceY", 0, 2, 0, 1, 8.0),
    Sketcher.Constraint("DistanceX", 0, 2, -1, 1, 29.022587),
    Sketcher.Constraint("DistanceY", -1, 1, 0, 2, 40.619918),
])
pad9 = body.newObject("PartDesign::Pad", "Pad008")
pad9.Profile = sketch15
pad9.Length = 4.5

sketch16 = body.newObject("Sketcher::SketchObject", "Sketch015")
sketch16.AttachmentSupport = (doc.getObject("XZ_Plane"), [""])
sketch16.MapMode = "FlatFace"
sketch16.AttachmentOffset = App.Placement(Vector(0, 0, -2), App.Rotation())
sketch16.addGeometry([
    Part.Circle(Vector(-65, 39.9, 0), Vector(0, 0, 1), 6),
    Part.Circle(Vector(-65, -36.1, 0), Vector(0, 0, 1), 3),
], False)
sketch16.addConstraint([
    Sketcher.Constraint("Vertical", 0, 3, 1, 3),
    Sketcher.Constraint("Diameter", 0, 12.0),
    Sketcher.Constraint("Diameter", 1, 6.0),
    Sketcher.Constraint("DistanceY", 1, 3, 0, 3, 76.0),
    Sketcher.Constraint("DistanceX", 0, 3, -1, 1, 65.022587),
    Sketcher.Constraint("DistanceY", -1, 1, 0, 3, 39.919918),
])
pocket7 = body.newObject("PartDesign::Pocket", "Pocket006")
pocket7.Profile = sketch16
pocket7.Length = 4.5
pocket7.Reversed = True

doc.recompute()
